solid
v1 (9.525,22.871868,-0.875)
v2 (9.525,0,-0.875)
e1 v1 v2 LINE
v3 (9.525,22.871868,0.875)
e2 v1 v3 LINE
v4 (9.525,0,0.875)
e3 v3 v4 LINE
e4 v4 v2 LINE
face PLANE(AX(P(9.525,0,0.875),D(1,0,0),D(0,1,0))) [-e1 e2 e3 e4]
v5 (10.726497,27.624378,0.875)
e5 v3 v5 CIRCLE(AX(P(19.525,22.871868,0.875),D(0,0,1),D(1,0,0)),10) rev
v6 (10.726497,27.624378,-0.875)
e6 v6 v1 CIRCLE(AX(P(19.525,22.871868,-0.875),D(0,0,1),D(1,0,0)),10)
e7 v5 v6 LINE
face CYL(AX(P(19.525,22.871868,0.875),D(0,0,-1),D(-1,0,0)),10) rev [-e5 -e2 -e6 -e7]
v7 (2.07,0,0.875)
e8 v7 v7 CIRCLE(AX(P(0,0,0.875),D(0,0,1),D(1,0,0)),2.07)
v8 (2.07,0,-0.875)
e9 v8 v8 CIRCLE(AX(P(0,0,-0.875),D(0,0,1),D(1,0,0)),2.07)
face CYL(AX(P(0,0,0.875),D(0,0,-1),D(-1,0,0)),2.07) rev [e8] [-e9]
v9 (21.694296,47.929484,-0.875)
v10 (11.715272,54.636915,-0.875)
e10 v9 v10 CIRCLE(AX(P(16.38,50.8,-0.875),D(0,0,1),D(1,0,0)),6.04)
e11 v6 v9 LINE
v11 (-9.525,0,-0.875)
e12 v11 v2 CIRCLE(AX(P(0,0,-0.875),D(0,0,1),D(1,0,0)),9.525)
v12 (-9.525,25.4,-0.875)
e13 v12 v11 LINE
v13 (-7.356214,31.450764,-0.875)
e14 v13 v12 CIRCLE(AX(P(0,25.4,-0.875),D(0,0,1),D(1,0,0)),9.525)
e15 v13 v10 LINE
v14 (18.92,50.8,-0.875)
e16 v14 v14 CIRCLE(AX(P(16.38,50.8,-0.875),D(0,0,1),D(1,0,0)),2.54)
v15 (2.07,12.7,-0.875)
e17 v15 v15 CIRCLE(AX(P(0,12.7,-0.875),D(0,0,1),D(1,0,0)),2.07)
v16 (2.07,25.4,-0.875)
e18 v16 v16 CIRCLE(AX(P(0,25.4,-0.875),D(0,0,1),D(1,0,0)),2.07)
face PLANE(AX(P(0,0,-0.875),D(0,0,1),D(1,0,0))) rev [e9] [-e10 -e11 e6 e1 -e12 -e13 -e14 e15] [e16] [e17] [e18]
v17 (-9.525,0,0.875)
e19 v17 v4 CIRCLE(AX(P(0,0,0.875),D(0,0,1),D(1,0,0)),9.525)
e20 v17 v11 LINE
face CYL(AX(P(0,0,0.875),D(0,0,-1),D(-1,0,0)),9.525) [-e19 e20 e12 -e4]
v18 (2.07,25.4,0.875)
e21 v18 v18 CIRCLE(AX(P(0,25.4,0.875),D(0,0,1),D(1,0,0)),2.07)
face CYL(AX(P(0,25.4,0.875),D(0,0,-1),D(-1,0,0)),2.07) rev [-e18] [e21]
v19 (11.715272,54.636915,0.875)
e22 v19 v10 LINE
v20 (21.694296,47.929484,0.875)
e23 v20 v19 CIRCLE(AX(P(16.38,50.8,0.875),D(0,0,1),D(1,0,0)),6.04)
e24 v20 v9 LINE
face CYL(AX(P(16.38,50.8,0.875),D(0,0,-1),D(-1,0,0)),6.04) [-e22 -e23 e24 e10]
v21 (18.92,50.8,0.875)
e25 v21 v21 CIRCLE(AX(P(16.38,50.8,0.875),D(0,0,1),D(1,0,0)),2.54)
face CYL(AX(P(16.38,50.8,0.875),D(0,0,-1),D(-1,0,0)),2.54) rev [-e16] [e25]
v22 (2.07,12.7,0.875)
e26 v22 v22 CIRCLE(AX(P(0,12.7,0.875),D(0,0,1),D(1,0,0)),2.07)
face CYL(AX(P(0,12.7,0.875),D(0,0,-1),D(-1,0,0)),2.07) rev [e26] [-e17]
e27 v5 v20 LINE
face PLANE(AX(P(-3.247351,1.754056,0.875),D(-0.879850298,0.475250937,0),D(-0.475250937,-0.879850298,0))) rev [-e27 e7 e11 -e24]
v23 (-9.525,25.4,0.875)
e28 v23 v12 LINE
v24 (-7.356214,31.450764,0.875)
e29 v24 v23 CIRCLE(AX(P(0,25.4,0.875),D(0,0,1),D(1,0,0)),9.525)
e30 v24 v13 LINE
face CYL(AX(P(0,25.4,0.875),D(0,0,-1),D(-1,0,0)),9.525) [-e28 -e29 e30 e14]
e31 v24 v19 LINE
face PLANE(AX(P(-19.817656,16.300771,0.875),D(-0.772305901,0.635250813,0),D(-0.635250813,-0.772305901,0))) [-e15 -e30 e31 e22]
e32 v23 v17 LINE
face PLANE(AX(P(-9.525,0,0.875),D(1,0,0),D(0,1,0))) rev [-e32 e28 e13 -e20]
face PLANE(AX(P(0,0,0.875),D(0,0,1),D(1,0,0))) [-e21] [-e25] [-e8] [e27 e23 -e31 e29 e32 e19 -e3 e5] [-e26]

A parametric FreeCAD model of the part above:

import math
import FreeCAD as App
import Part
import Sketcher

V = App.Vector
Q = App.Units.Quantity


def edges_at(feature, points):
    """Names of the edges that pass closest to the given points."""
    edges = feature.Shape.Edges
    near = lambda p: min(range(len(edges)), key=lambda i: edges[i].distToShape(Part.Vertex(*p))[0])
    return sorted({f"Edge{near(p) + 1}" for p in points})

doc = App.newDocument("Part")
params = doc.addObject("Spreadsheet::Sheet", "Params")
for row, (alias, value) in enumerate([
    ("sketch1_diameter", "0.2 in"),
    ("sketch1_height", "1 in"),
    ("sketch1_radius", "0.375 in"),
    ("pad1_length", "1.75 mm"),
    ("fillet_radius", "10 mm"),
], start=1):
    params.set(f"A{row}", alias)
    params.set(f"B{row}", "=" + value)
    params.setAlias(f"B{row}", alias)

body = doc.addObject("PartDesign::Body", "Body")

sketch1 = body.newObject("Sketcher::SketchObject", "Sketch")
sketch1.AttachmentSupport = (doc.getObject("XY_Plane"), [""])
sketch1.MapMode = "FlatFace"
sketch1.addGeometry(Part.LineSegment(V(11.715272, 54.636915, 0), V(-7.356214, 31.450764, 0)), False)
sketch1.addGeometry(Part.ArcOfCircle(Part.Circle(V(0, 25.4, 0), V(0, 0, 1), 9.525), math.radians(140.561411), math.radians(180)), False)
sketch1.addGeometry(Part.LineSegment(V(-9.525, 25.4, 0), V(-9.525, 0, 0)), False)
sketch1.addGeometry(Part.ArcOfCircle(Part.Circle(V(0, 0, 0), V(0, 0, 1), 9.525), math.radians(180), math.radians(360)), False)
sketch1.addGeometry(Part.LineSegment(V(9.525, 0, 0), V(9.525, 25.4, 0)), False)
sketch1.addGeometry(Part.LineSegment(V(9.525, 25.4, 0), V(21.694296, 47.929484, 0)), False)
sketch1.addGeometry(Part.ArcOfCircle(Part.Circle(V(16.38, 50.8, 0), V(0, 0, 1), 6.04), math.radians(-28.37569), math.radians(140.561411)), False)
sketch1.addGeometry(Part.Circle(V(16.38, 50.8, 0), V(0, 0, 1), 2.54), False)
sketch1.addGeometry(Part.Circle(V(0, 25.4, 0), V(0, 0, 1), 2.07), False)
sketch1.addGeometry(Part.Circle(V(0, 12.7, 0), V(0, 0, 1), 2.07), False)
sketch1.addGeometry(Part.Circle(V(0, 0, 0), V(0, 0, 1), 2.07), False)
sketch1.addConstraint(Sketcher.Constraint("Tangent", 0, 2, 1, 1))
sketch1.addConstraint(Sketcher.Constraint("Tangent", 1, 2, 2, 1))
sketch1.addConstraint(Sketcher.Constraint("Tangent", 2, 2, 3, 1))
sketch1.addConstraint(Sketcher.Constraint("Tangent", 3, 2, 4, 1))
sketch1.addConstraint(Sketcher.Constraint("Coincident", 4, 2, 5, 1))
sketch1.addConstraint(Sketcher.Constraint("Tangent", 5, 2, 6, 1))
sketch1.addConstraint(Sketcher.Constraint("Tangent", 6, 2, 0, 1))
sketch1.addConstraint(Sketcher.Constraint("Vertical", 2))
sketch1.addConstraint(Sketcher.Constraint("Vertical", 4))
sketch1.addConstraint(Sketcher.Constraint("Coincident", 3, 3, -1, 1))
sketch1.addConstraint(Sketcher.Constraint("Coincident", 10, 3, -1, 1))
sketch1.addConstraint(Sketcher.Constraint("Coincident", 7, 3, 6, 3))
sketch1.addConstraint(Sketcher.Constraint("Coincident", 8, 3, 1, 3))
sketch1.addConstraint(Sketcher.Constraint("Equal", 1, 3))
sketch1.addConstraint(Sketcher.Constraint("Equal", 8, 9))
sketch1.addConstraint(Sketcher.Constraint("Equal", 9, 10))
sketch1.addConstraint(Sketcher.Constraint("PointOnObject", 9, 3, -2))
sketch1.addConstraint(Sketcher.Constraint("Horizontal", 1, 2, 4, 2))
sketch1.addConstraint(Sketcher.Constraint("Diameter", 7, Q("0.2 in")))
sketch1.addConstraint(Sketcher.Constraint("DistanceY", 2, 2, 2, 1, Q("1 in")))
sketch1.addConstraint(Sketcher.Constraint("DistanceY", -1, 1, 6, 3, Q("2 in")))
sketch1.addConstraint(Sketcher.Constraint("Radius", 1, Q("0.375 in")))
sketch1.addConstraint(Sketcher.Constraint("DistanceY", -1, 1, 9, 3, Q("0.5 in")))
sketch1.addConstraint(Sketcher.Constraint("Diameter", 8, Q("4.14 mm")))
sketch1.addConstraint(Sketcher.Constraint("Radius", 6, Q("6.04 mm")))
sketch1.addConstraint(Sketcher.Constraint("DistanceX", -1, 1, 6, 3, Q("16.38 mm")))
sketch1.setExpression("Constraints[18]", "Params.sketch1_diameter")
sketch1.setExpression("Constraints[19]", "Params.sketch1_height")
sketch1.setExpression("Constraints[21]", "Params.sketch1_radius")
pad1 = body.newObject("PartDesign::Pad", "Pad")
pad1.Profile = sketch1
pad1.setExpression("Length", "Params.pad1_length")
pad1.Midplane = True
doc.recompute()

fillet = body.newObject("PartDesign::Fillet", "Fillet")
fillet.Base = (pad1, edges_at(pad1, [(9.525, 25.4, -0.438)]))
fillet.setExpression("Radius", "Params.fillet_radius")

doc.recompute()
